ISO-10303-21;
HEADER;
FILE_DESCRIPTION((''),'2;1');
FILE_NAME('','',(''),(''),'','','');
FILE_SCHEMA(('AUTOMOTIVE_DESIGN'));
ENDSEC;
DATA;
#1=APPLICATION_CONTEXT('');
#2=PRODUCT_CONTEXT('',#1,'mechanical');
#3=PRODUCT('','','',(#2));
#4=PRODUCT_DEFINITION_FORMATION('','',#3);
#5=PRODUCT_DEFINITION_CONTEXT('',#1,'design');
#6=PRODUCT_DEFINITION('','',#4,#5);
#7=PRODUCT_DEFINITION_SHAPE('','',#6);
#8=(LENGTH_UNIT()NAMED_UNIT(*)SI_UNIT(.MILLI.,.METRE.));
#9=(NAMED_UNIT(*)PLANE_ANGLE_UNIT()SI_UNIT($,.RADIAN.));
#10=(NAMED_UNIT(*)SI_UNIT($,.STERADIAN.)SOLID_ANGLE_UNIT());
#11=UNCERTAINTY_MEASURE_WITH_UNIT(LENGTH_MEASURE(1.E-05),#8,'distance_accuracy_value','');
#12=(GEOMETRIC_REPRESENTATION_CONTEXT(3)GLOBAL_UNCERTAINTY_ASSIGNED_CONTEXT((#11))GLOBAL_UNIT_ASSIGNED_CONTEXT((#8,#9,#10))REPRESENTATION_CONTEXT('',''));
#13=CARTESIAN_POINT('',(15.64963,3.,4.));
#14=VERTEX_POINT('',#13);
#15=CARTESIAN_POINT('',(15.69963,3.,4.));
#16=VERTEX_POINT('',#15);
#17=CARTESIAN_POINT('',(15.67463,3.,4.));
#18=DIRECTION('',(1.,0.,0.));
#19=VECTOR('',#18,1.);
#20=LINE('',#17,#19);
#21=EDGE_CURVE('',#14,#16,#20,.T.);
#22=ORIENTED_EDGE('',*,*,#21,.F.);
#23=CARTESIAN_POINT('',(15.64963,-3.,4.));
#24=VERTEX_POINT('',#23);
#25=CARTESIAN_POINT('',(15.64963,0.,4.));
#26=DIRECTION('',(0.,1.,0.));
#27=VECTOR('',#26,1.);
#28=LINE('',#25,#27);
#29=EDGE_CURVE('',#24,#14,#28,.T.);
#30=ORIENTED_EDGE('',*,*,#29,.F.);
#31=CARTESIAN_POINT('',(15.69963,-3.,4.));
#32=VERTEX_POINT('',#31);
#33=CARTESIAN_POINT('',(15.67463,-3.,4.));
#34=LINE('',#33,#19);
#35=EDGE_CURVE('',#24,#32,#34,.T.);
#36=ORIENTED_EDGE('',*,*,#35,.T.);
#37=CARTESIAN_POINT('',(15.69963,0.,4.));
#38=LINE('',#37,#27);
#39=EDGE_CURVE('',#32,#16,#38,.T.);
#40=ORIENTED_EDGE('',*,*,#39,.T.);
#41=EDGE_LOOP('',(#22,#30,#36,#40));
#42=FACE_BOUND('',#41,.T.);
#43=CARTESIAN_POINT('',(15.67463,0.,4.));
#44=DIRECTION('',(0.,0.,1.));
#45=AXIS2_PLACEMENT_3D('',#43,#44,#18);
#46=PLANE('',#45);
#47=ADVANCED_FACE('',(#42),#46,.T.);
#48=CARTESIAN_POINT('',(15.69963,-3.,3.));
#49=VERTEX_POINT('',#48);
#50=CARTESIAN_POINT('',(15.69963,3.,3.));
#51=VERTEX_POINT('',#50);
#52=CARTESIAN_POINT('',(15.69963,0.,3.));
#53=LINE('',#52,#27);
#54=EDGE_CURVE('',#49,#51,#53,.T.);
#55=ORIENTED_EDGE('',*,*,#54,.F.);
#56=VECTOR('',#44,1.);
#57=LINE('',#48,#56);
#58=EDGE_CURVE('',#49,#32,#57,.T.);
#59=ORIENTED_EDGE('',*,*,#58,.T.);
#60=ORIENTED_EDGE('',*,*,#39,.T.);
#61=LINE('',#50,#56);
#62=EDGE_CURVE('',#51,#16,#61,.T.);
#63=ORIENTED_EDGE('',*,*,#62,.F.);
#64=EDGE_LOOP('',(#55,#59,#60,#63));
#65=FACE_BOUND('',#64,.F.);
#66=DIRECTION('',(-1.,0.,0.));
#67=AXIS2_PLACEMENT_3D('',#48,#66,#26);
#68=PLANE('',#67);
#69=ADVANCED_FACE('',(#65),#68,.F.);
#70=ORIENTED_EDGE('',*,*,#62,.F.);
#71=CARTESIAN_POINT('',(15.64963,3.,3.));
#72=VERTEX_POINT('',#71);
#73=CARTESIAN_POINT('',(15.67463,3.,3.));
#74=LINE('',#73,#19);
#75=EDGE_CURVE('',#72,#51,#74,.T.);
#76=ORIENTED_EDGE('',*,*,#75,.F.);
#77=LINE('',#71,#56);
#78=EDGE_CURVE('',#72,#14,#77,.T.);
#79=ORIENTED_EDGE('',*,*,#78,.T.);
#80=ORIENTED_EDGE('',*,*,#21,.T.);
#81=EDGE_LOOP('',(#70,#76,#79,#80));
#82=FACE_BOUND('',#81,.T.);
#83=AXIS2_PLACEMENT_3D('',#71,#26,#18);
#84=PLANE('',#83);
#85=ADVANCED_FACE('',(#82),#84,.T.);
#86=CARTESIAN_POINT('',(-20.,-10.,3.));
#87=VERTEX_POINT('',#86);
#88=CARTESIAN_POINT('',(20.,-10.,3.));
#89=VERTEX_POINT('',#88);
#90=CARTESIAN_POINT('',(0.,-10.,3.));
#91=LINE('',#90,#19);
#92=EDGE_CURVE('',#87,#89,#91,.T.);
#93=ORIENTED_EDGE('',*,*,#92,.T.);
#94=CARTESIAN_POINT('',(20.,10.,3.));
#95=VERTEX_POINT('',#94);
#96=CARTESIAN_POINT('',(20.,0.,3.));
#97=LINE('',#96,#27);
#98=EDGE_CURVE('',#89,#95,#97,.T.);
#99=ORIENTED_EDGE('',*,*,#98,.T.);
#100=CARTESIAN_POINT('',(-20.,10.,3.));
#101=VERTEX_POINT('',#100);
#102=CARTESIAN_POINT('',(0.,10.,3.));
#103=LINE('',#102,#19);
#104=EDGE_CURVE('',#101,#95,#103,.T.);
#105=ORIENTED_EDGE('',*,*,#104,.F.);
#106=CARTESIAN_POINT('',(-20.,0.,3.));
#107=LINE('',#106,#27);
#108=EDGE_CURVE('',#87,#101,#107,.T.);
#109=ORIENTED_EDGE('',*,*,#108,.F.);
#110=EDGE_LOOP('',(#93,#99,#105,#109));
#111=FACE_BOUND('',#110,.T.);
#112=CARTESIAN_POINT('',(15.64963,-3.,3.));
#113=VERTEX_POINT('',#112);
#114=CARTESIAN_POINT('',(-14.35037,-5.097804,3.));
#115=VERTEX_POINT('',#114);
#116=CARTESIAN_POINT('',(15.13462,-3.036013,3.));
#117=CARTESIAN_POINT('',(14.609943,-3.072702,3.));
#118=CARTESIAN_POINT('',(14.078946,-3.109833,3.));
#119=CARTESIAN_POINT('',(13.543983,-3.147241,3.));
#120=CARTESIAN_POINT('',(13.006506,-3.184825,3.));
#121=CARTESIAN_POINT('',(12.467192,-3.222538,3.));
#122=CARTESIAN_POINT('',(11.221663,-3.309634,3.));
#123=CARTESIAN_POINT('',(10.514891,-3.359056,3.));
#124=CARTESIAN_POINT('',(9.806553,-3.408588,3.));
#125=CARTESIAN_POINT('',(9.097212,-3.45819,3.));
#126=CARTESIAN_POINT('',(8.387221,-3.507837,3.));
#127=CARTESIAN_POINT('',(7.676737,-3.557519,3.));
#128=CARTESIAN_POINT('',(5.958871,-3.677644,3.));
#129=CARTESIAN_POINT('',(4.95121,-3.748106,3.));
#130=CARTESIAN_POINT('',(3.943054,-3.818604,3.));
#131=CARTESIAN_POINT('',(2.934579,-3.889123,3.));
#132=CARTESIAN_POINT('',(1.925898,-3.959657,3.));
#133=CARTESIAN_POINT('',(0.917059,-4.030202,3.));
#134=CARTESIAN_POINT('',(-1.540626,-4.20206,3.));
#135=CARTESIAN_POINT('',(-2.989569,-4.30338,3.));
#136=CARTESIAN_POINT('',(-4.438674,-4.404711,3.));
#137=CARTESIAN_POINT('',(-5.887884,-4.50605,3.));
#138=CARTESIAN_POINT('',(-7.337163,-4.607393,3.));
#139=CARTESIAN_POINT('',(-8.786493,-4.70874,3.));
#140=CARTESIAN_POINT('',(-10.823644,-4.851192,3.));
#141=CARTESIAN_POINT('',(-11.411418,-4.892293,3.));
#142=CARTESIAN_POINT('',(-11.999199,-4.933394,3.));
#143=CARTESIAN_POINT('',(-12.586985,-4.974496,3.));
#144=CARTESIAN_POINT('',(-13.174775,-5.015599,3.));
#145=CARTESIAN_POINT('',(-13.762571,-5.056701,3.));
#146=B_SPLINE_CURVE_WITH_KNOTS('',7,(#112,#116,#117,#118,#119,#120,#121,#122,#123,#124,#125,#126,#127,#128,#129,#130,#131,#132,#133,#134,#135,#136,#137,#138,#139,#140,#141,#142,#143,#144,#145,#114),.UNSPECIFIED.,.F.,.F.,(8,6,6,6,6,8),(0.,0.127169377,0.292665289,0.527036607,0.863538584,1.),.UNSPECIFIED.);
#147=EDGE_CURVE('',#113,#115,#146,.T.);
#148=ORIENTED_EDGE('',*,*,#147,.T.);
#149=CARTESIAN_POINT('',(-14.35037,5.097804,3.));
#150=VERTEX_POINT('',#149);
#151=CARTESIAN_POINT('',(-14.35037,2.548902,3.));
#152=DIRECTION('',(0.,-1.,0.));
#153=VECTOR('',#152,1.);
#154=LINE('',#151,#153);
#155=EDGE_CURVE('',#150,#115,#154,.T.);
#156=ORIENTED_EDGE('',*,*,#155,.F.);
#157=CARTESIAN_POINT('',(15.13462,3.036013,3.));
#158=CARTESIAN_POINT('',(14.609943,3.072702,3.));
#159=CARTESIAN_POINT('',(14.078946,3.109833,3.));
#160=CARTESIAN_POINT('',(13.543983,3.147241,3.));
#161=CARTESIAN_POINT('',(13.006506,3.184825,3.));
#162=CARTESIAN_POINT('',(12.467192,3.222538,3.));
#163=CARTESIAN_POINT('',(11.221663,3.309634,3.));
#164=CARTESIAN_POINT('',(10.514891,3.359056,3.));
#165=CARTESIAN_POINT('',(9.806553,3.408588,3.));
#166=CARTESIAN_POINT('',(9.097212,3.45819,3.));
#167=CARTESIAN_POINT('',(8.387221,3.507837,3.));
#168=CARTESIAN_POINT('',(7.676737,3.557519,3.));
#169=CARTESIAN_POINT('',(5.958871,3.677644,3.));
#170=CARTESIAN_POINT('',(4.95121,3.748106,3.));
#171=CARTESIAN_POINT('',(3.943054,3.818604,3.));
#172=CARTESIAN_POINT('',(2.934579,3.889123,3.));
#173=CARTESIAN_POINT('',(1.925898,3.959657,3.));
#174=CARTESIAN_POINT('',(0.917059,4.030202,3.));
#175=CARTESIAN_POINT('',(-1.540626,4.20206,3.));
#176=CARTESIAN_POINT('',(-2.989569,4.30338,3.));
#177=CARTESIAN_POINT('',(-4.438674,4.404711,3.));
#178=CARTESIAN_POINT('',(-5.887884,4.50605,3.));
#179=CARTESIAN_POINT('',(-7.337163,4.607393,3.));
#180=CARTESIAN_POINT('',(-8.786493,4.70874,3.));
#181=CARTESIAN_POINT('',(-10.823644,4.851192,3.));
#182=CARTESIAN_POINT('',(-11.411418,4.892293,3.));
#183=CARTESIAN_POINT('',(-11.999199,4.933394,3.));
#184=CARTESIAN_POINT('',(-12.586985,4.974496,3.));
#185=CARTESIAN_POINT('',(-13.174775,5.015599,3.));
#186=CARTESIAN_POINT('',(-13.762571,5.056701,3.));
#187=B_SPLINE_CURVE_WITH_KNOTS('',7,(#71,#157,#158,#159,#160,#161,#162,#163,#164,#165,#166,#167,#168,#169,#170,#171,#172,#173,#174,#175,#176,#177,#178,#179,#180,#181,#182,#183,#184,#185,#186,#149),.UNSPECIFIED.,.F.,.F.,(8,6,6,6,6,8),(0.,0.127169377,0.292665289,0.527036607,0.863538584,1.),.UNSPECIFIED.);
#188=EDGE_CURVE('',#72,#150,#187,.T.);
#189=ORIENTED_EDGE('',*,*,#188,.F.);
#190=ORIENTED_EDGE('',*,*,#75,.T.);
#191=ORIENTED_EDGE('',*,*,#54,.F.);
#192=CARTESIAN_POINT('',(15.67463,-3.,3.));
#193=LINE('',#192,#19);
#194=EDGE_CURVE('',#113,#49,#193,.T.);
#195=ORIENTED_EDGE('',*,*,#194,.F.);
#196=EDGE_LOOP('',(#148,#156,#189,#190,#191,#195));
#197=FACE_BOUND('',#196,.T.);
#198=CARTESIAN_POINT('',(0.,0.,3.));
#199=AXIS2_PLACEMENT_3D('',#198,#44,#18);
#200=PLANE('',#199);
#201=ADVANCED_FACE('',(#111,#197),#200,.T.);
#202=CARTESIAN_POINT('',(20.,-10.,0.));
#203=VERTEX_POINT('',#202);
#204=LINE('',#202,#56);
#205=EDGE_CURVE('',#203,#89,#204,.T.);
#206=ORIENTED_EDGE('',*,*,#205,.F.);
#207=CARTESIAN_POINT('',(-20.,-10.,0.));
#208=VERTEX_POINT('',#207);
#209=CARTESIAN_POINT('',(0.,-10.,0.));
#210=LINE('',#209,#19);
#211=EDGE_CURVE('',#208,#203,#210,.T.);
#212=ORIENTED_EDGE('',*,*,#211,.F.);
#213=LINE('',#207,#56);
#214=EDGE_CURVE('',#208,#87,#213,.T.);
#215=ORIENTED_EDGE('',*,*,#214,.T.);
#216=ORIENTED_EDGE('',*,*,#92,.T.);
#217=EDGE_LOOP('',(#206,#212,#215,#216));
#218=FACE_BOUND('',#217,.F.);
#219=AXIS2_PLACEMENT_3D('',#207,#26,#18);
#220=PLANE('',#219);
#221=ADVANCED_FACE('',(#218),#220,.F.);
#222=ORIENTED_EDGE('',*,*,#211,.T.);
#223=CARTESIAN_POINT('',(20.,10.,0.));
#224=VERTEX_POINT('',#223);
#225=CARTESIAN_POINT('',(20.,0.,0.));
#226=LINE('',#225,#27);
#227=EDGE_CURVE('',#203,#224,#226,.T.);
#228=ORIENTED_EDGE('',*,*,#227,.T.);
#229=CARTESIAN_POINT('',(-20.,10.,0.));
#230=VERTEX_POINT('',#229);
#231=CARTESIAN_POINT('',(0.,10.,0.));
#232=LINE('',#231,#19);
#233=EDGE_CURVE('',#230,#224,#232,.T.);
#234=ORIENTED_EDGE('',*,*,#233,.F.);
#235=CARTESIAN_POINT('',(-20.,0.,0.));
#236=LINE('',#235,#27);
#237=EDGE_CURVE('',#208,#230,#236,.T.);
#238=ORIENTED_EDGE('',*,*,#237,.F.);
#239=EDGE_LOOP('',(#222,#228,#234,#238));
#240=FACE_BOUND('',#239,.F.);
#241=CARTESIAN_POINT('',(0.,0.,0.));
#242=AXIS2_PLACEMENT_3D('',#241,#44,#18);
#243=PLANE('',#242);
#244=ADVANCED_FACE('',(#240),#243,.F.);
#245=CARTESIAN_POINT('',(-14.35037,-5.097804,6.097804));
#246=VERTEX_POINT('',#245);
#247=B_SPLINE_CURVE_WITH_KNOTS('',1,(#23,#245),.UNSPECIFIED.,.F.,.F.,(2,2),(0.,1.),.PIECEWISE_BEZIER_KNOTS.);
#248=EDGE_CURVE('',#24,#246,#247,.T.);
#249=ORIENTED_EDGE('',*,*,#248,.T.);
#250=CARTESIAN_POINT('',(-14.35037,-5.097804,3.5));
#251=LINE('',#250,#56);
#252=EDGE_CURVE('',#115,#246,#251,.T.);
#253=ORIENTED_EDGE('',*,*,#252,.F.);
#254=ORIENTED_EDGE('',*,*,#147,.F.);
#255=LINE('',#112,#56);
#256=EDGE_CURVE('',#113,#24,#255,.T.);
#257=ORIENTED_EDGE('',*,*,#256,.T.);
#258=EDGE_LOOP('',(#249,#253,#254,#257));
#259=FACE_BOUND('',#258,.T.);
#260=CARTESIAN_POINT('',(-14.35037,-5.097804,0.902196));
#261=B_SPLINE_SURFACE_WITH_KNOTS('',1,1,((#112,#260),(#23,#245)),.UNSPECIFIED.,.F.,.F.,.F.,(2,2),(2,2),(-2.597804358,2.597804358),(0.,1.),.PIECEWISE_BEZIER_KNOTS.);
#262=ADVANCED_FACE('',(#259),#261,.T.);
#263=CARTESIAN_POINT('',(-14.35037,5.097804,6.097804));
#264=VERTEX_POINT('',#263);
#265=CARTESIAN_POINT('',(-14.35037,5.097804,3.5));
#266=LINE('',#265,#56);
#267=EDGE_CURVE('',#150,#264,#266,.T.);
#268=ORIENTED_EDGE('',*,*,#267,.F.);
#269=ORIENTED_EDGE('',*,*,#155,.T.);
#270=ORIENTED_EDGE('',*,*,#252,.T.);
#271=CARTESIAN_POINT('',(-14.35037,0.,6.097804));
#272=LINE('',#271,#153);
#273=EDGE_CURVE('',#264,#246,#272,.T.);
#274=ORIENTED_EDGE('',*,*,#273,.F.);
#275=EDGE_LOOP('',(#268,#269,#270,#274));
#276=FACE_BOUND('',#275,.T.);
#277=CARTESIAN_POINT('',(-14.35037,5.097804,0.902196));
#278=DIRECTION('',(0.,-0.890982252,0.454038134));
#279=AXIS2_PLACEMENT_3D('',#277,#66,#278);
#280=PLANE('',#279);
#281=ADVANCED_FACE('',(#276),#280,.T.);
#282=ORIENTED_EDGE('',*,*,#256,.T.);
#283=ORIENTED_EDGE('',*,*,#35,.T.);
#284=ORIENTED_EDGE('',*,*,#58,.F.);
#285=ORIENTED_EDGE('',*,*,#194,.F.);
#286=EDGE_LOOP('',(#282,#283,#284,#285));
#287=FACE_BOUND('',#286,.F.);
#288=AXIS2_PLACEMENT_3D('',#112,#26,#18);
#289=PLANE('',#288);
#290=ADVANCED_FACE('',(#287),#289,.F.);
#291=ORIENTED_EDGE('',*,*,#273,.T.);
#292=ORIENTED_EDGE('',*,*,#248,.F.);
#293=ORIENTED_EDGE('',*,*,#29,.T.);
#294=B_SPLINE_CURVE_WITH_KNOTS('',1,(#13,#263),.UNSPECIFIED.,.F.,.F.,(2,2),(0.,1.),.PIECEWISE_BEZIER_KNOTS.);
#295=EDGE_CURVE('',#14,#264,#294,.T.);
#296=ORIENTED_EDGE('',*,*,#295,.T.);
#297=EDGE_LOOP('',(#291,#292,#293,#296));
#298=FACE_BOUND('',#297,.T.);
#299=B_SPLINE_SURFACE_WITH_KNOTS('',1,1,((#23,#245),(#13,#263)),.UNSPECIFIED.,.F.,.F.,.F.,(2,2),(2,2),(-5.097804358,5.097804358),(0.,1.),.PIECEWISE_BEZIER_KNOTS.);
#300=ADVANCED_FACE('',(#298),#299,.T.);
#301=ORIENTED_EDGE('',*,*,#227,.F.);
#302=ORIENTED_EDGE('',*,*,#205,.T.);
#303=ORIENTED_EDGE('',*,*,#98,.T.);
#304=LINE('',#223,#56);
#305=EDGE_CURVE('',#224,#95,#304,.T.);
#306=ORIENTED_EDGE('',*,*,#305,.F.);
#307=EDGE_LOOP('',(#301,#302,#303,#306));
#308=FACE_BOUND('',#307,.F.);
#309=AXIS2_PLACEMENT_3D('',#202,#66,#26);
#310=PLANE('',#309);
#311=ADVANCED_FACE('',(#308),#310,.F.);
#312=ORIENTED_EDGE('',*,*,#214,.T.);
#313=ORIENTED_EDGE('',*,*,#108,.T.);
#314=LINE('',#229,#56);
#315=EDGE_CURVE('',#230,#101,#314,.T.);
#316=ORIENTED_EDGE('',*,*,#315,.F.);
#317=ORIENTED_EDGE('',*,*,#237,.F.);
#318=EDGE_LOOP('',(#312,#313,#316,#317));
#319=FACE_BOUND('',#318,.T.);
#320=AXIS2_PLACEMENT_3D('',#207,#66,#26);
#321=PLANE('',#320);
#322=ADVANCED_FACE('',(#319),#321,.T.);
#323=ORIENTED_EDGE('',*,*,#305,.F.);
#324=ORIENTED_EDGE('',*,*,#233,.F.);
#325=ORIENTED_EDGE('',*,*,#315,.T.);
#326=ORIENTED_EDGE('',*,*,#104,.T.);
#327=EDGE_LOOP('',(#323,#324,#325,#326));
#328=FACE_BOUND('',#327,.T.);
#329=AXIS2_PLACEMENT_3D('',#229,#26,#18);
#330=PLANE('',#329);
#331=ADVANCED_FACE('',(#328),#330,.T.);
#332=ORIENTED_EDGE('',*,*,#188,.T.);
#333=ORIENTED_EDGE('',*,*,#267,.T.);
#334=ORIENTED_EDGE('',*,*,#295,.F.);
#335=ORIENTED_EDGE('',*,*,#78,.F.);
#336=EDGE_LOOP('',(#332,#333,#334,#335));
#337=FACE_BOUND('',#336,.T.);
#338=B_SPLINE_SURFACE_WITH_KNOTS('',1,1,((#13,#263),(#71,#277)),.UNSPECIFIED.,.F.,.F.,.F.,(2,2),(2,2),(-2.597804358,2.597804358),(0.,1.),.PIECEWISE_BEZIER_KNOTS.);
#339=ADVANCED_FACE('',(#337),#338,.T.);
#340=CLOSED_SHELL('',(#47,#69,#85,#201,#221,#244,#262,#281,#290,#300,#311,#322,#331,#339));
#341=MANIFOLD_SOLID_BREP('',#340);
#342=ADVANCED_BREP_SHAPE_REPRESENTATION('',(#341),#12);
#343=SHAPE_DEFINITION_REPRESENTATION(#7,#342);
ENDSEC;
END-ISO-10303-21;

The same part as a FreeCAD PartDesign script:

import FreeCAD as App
import Part
import Sketcher
from FreeCAD import Vector

doc = App.newDocument("Part")
params = doc.addObject("Spreadsheet::Sheet", "Params")
for row, (alias, value) in enumerate([
    ("sketch1_width", "40 mm"),
    ("sketch1_height", "20 mm"),
    ("pad1_length", "3 mm"),
    ("sketch2_height", "6 mm"),
    ("sketch2_width", "0.05 mm"),
    ("pad2_length", "1 mm"),
    ("sketch3_width", "6 mm"),
    ("sketch3_height", "1 mm"),
    ("pad3_length", "30 mm"),
    ("pad3_taper", "4 deg"),
], start=1):
    params.set(f"A{row}", alias)
    params.set(f"B{row}", "=" + value)
    params.setAlias(f"B{row}", alias)

body = doc.addObject("PartDesign::Body", "Body")

# Sketch on XY plane
sketch1 = doc.addObject("Sketcher::SketchObject", "Sketch")
body.addObject(sketch1)
sketch1.AttachmentSupport = (doc.XY_Plane, [""])
sketch1.MapMode = "FlatFace"
sketch1.addGeometry(Part.LineSegment(Vector(-20, 10, 0), Vector(-20, -10, 0)), False)
sketch1.addGeometry(Part.LineSegment(Vector(-20, -10, 0), Vector(20, -10, 0)), False)
sketch1.addGeometry(Part.LineSegment(Vector(20, -10, 0), Vector(20, 10, 0)), False)
sketch1.addGeometry(Part.LineSegment(Vector(20, 10, 0), Vector(-20, 10, 0)), False)
sketch1.addConstraint(Sketcher.Constraint("Coincident", 0, 2, 1, 1))
sketch1.addConstraint(Sketcher.Constraint("Coincident", 1, 2, 2, 1))
sketch1.addConstraint(Sketcher.Constraint("Coincident", 2, 2, 3, 1))
sketch1.addConstraint(Sketcher.Constraint("Coincident", 3, 2, 0, 1))
sketch1.addConstraint(Sketcher.Constraint("Vertical", 0))
sketch1.addConstraint(Sketcher.Constraint("Horizontal", 1))
sketch1.addConstraint(Sketcher.Constraint("Vertical", 2))
sketch1.addConstraint(Sketcher.Constraint("Horizontal", 3))
sketch1.addConstraint(Sketcher.Constraint("Symmetric", 0, 2, 2, 2, -1, 1))
sketch1.addConstraint(Sketcher.Constraint("DistanceX", 1, 1, 1, 2, 40.0))
sketch1.addConstraint(Sketcher.Constraint("DistanceY", 0, 2, 0, 1, 20.0))
sketch1.setExpression("Constraints[9]", "Params.sketch1_width")
sketch1.setExpression("Constraints[10]", "Params.sketch1_height")
pad1 = doc.addObject("PartDesign::Pad", "Pad")
body.addObject(pad1)
pad1.Profile = sketch1
pad1.setExpression("Length", "Params.pad1_length")

# Sketch on XY plane
sketch2 = doc.addObject("Sketcher::SketchObject", "Sketch001")
body.addObject(sketch2)
sketch2.AttachmentSupport = (doc.XY_Plane, [""])
sketch2.MapMode = "FlatFace"
sketch2.AttachmentOffset = App.Placement(Vector(0, 0, 3), App.Rotation())
sketch2.addGeometry(Part.LineSegment(Vector(15.65, 3, 0), Vector(15.65, -3, 0)), False)
sketch2.addGeometry(Part.LineSegment(Vector(15.65, -3, 0), Vector(15.7, -3, 0)), False)
sketch2.addGeometry(Part.LineSegment(Vector(15.7, -3, 0), Vector(15.7, 3, 0)), False)
sketch2.addGeometry(Part.LineSegment(Vector(15.7, 3, 0), Vector(15.65, 3, 0)), False)
sketch2.addConstraint(Sketcher.Constraint("Coincident", 0, 2, 1, 1))
sketch2.addConstraint(Sketcher.Constraint("Coincident", 1, 2, 2, 1))
sketch2.addConstraint(Sketcher.Constraint("Coincident", 2, 2, 3, 1))
sketch2.addConstraint(Sketcher.Constraint("Coincident", 3, 2, 0, 1))
sketch2.addConstraint(Sketcher.Constraint("Vertical", 0))
sketch2.addConstraint(Sketcher.Constraint("Horizontal", 1))
sketch2.addConstraint(Sketcher.Constraint("Vertical", 2))
sketch2.addConstraint(Sketcher.Constraint("Horizontal", 3))
sketch2.addConstraint(Sketcher.Constraint("DistanceY", 0, 2, 0, 1, 6.0))
sketch2.addConstraint(Sketcher.Constraint("DistanceY", 0, 2, -1, 1, 3.0))
sketch2.addConstraint(Sketcher.Constraint("DistanceX", 1, 1, 1, 2, 0.05))
sketch2.addConstraint(Sketcher.Constraint("DistanceX", -1, 1, 0, 2, 15.64963))
sketch2.setExpression("Constraints[8]", "Params.sketch2_height")
sketch2.setExpression("Constraints[10]", "Params.sketch2_width")
pad2 = doc.addObject("PartDesign::Pad", "Pad001")
body.addObject(pad2)
pad2.Profile = sketch2
pad2.setExpression("Length", "Params.pad2_length")

# Sketch on YZ plane
sketch3 = doc.addObject("Sketcher::SketchObject", "Sketch002")
body.addObject(sketch3)
sketch3.AttachmentSupport = (doc.YZ_Plane, [""])
sketch3.MapMode = "FlatFace"
sketch3.AttachmentOffset = App.Placement(Vector(0, 0, 15.64963), App.Rotation())
sketch3.addGeometry(Part.LineSegment(Vector(3, 4, 0), Vector(3, 3, 0)), False)
sketch3.addGeometry(Part.LineSegment(Vector(3, 3, 0), Vector(-3, 3, 0)), False)
sketch3.addGeometry(Part.LineSegment(Vector(-3, 3, 0), Vector(-3, 4, 0)), False)
sketch3.addGeometry(Part.LineSegment(Vector(-3, 4, 0), Vector(3, 4, 0)), False)
sketch3.addConstraint(Sketcher.Constraint("Coincident", 0, 2, 1, 1))
sketch3.addConstraint(Sketcher.Constraint("Coincident", 1, 2, 2, 1))
sketch3.addConstraint(Sketcher.Constraint("Coincident", 2, 2, 3, 1))
sketch3.addConstraint(Sketcher.Constraint("Coincident", 3, 2, 0, 1))
sketch3.addConstraint(Sketcher.Constraint("Vertical", 0))
sketch3.addConstraint(Sketcher.Constraint("Horizontal", 1))
sketch3.addConstraint(Sketcher.Constraint("Vertical", 2))
sketch3.addConstraint(Sketcher.Constraint("Horizontal", 3))
sketch3.addConstraint(Sketcher.Constraint("DistanceX", 1, 2, 1, 1, 6.0))
sketch3.addConstraint(Sketcher.Constraint("DistanceY", 0, 2, 0, 1, 1.0))
sketch3.addConstraint(Sketcher.Constraint("DistanceX", -1, 1, 0, 2, 3.0))
sketch3.addConstraint(Sketcher.Constraint("DistanceY", -1, 1, 0, 2, 3.0))
sketch3.setExpression("Constraints[8]", "Params.sketch3_width")
sketch3.setExpression("Constraints[9]", "Params.sketch3_height")
pad3 = doc.addObject("PartDesign::Pad", "Pad002")
body.addObject(pad3)
pad3.Profile = sketch3
pad3.setExpression("Length", "Params.pad3_length")
pad3.Reversed = True
pad3.setExpression("TaperAngle", "Params.pad3_taper")

doc.recompute()
